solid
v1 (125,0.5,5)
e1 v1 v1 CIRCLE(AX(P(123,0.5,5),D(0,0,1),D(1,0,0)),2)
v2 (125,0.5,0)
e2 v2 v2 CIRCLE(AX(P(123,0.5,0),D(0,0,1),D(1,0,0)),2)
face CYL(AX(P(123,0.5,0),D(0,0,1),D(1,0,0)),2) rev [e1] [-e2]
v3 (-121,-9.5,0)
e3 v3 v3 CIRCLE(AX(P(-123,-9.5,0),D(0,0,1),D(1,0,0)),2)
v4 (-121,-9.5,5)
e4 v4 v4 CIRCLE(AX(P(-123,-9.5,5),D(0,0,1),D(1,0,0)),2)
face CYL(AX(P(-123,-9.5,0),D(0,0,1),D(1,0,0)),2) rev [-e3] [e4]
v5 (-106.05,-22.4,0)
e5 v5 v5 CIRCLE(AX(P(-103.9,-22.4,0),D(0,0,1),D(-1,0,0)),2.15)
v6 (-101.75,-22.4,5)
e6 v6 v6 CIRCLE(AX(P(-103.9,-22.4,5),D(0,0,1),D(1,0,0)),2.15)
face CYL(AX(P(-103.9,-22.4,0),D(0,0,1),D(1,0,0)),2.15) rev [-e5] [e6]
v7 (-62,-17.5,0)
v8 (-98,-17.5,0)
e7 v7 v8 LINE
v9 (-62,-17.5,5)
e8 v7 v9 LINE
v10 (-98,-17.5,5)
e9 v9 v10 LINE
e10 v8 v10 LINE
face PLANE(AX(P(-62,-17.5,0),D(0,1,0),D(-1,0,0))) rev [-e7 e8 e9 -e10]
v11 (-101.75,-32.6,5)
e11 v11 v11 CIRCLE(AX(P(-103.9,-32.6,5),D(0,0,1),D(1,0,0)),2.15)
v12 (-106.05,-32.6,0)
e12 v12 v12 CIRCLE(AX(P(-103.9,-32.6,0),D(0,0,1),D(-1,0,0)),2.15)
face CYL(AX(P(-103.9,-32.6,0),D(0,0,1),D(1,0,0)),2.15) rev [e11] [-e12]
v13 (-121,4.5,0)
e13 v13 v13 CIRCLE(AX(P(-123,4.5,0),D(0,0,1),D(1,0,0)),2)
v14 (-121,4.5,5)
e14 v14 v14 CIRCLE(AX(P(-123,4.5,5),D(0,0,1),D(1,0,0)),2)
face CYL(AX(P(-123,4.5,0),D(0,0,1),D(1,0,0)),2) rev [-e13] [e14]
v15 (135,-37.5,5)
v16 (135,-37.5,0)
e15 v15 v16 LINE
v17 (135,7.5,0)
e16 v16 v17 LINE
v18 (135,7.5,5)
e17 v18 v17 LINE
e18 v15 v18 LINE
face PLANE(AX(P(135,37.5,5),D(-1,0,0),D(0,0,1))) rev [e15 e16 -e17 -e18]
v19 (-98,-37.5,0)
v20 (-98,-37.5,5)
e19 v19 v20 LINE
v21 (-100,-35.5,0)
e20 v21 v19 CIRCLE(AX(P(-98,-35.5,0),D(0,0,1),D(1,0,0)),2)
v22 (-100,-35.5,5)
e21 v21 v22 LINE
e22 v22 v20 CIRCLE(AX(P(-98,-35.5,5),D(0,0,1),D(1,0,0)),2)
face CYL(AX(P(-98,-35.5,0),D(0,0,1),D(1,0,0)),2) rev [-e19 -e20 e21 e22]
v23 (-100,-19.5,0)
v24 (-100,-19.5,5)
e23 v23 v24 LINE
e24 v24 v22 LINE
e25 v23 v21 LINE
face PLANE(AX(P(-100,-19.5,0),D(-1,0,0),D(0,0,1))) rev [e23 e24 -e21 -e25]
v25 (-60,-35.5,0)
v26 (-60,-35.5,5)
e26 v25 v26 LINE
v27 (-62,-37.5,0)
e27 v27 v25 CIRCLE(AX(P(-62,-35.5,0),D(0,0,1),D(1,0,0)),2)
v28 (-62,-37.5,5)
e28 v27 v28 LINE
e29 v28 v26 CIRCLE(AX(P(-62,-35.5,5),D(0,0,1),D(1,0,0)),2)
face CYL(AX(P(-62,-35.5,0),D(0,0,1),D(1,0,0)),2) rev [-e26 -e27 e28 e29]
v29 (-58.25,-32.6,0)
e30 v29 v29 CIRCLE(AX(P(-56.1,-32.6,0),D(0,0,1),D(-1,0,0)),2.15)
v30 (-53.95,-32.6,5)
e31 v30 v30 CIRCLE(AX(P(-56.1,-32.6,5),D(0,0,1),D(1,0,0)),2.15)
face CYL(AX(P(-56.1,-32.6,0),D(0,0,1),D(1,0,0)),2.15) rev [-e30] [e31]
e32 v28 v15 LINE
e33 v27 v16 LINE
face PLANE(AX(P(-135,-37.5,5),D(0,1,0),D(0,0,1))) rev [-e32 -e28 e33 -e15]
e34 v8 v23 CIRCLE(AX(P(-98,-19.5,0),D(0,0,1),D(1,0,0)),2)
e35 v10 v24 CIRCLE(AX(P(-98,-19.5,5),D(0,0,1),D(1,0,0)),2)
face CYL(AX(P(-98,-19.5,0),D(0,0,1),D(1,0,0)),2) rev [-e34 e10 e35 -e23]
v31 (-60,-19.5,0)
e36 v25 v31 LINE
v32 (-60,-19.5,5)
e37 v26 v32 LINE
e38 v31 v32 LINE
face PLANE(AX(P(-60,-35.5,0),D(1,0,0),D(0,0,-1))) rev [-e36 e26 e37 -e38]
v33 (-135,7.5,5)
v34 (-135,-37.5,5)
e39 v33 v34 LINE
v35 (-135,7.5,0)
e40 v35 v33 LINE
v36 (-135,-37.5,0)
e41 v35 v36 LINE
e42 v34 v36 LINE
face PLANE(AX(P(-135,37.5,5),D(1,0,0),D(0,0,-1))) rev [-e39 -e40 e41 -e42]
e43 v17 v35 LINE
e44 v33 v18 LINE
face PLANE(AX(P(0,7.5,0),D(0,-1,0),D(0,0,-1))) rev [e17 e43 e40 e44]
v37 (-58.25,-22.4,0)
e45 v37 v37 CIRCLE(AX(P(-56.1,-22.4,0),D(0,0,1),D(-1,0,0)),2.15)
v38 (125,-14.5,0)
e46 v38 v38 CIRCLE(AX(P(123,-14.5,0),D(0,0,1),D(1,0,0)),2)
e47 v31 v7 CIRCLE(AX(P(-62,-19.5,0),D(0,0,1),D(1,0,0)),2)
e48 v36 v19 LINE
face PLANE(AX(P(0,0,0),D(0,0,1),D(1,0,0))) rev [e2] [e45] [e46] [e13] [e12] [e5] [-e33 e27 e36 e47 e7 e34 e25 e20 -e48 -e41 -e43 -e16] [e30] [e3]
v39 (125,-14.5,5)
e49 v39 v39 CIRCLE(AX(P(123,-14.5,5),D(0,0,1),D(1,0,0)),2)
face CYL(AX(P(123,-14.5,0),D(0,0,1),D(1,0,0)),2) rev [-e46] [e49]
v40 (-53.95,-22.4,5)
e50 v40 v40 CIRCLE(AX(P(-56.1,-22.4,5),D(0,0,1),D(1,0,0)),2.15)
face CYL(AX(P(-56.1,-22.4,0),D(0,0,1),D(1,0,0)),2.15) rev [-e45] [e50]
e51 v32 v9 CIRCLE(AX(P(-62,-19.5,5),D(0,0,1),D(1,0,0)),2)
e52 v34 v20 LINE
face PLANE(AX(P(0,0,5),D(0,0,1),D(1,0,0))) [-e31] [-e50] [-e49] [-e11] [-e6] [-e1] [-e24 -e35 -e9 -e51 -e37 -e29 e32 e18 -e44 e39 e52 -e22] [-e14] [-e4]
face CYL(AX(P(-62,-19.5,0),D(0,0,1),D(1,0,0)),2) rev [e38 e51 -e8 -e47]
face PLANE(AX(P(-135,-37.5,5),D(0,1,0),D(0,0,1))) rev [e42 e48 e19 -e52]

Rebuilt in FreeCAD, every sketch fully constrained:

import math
import FreeCAD as App
import Part
import Sketcher

V = App.Vector
Q = App.Units.Quantity


def add_polygon(sketch, points):
    """Adds a closed chain of lines whose ends are joined by coincident constraints."""
    first, n = sketch.GeometryCount, len(points)
    for a, b in zip(points, points[1:] + points[:1]):
        sketch.addGeometry(Part.LineSegment(App.Vector(*a, 0), App.Vector(*b, 0)), False)
    for i in range(n):
        sketch.addConstraint(Sketcher.Constraint("Coincident", first + i, 2, first + (i + 1) % n, 1))

doc = App.newDocument("Part")
params = doc.addObject("Spreadsheet::Sheet", "Params")
for row, (alias, value) in enumerate([
    ("sketch1_width", "270 mm"),
    ("sketch1_height", "75 mm"),
    ("pad1_length", "5 mm"),
    ("sketch2_diameter", "4 mm"),
    ("sketch3_radius", "2 mm"),
    ("sketch3_width", "36 mm"),
    ("sketch3_height", "16 mm"),
    ("sketch3_radius2", "2.15 mm"),
    ("sketch4_width", "270 mm"),
    ("sketch4_height", "5 mm"),
    ("pocket3_length", "30 mm"),
], start=1):
    params.set(f"A{row}", alias)
    params.set(f"B{row}", "=" + value)
    params.setAlias(f"B{row}", alias)

body = doc.addObject("PartDesign::Body", "Body")

# Sketch on XY plane
sketch1 = doc.addObject("Sketcher::SketchObject", "Sketch")
body.addObject(sketch1)
sketch1.AttachmentSupport = (doc.XY_Plane, [""])
sketch1.MapMode = "FlatFace"
add_polygon(sketch1, [(-135, 38), (-135, -38), (135, -38), (135, 38)])  # lines 0-3
sketch1.addConstraint([
    Sketcher.Constraint("Vertical", 0),
    Sketcher.Constraint("Horizontal", 1),
    Sketcher.Constraint("Vertical", 2),
    Sketcher.Constraint("Horizontal", 3),
    Sketcher.Constraint("Symmetric", 0, 2, 2, 2, -1, 1),
    Sketcher.Constraint("DistanceX", 1, 1, 1, 2, Q("270 mm")),
    Sketcher.Constraint("DistanceY", 0, 2, 0, 1, Q("75 mm")),
])
sketch1.setExpression("Constraints[9]", "Params.sketch1_width")
sketch1.setExpression("Constraints[10]", "Params.sketch1_height")
pad1 = doc.addObject("PartDesign::Pad", "Pad")
body.addObject(pad1)
pad1.Profile = sketch1
pad1.setExpression("Length", "Params.pad1_length")

# Sketch on XY plane
sketch2 = doc.addObject("Sketcher::SketchObject", "Sketch001")
body.addObject(sketch2)
sketch2.AttachmentSupport = (doc.XY_Plane, [""])
sketch2.MapMode = "FlatFace"
sketch2.AttachmentOffset = App.Placement(V(0, 0, 5), App.Rotation())
sketch2.addGeometry([
    Part.Circle(V(123, 0.5, 0), V(0, 0, 1), 2),
    Part.Circle(V(123, -14.5, 0), V(0, 0, 1), 2),
    Part.Circle(V(-123, 4.5, 0), V(0, 0, 1), 2),
    Part.Circle(V(-123, -9.5, 0), V(0, 0, 1), 2),
], False)
sketch2.addConstraint([
    Sketcher.Constraint("Equal", 0, 1),
    Sketcher.Constraint("Equal", 1, 2),
    Sketcher.Constraint("Equal", 2, 3),
    Sketcher.Constraint("Vertical", 0, 3, 1, 3),
    Sketcher.Constraint("Vertical", 2, 3, 3, 3),
    Sketcher.Constraint("Diameter", 0, Q("4 mm")),
    Sketcher.Constraint("DistanceX", -1, 1, 0, 3, Q("123 mm")),
    Sketcher.Constraint("DistanceX", 2, 3, -1, 1, Q("123 mm")),
    Sketcher.Constraint("DistanceY", 1, 3, 0, 3, Q("15 mm")),
    Sketcher.Constraint("DistanceY", 0, 3, 2, 3, Q("4 mm")),
    Sketcher.Constraint("DistanceY", 3, 3, 2, 3, Q("14 mm")),
    Sketcher.Constraint("DistanceY", -1, 1, 0, 3, Q("0.5 mm")),
])
sketch2.setExpression("Constraints[5]", "Params.sketch2_diameter")
pocket1 = doc.addObject("PartDesign::Pocket", "Pocket")
body.addObject(pocket1)
pocket1.Profile = sketch2
pocket1.Type = "ThroughAll"

# Sketch on XY plane
sketch3 = doc.addObject("Sketcher::SketchObject", "Sketch002")
body.addObject(sketch3)
sketch3.AttachmentSupport = (doc.XY_Plane, [""])
sketch3.MapMode = "FlatFace"
sketch3.AttachmentOffset = App.Placement(V(0, 0, 5), App.Rotation())
sketch3.addGeometry([
    Part.LineSegment(V(-98, -37.5, 0), V(-62, -37.5, 0)),  # 0
    Part.ArcOfCircle(Part.Circle(V(-62, -35.5, 0), V(0, 0, 1), 2), math.radians(-90), math.radians(0)),  # 1
    Part.LineSegment(V(-60, -35.5, 0), V(-60, -19.5, 0)),  # 2
    Part.ArcOfCircle(Part.Circle(V(-62, -19.5, 0), V(0, 0, 1), 2), math.radians(0), math.radians(90)),  # 3
    Part.LineSegment(V(-62, -17.5, 0), V(-98, -17.5, 0)),  # 4
    Part.ArcOfCircle(Part.Circle(V(-98, -19.5, 0), V(0, 0, 1), 2), math.radians(90), math.radians(180)),  # 5
    Part.LineSegment(V(-100, -19.5, 0), V(-100, -35.5, 0)),  # 6
    Part.ArcOfCircle(Part.Circle(V(-98, -35.5, 0), V(0, 0, 1), 2), math.radians(-180), math.radians(-90)),  # 7
    Part.ArcOfCircle(Part.Circle(V(-56.1, -32.6, 0), V(0, 0, 1), 2.1), math.radians(37), math.radians(323)),  # 8
    Part.ArcOfCircle(Part.Circle(V(-56.1, -32.6, 0), V(0, 0, 1), 2.1), math.radians(-37), math.radians(37)),  # 9
    Part.ArcOfCircle(Part.Circle(V(-56.1, -22.4, 0), V(0, 0, 1), 2.1), math.radians(37), math.radians(323)),  # 10
    Part.ArcOfCircle(Part.Circle(V(-56.1, -22.4, 0), V(0, 0, 1), 2.1), math.radians(-37), math.radians(37)),  # 11
    Part.ArcOfCircle(Part.Circle(V(-103.9, -32.6, 0), V(0, 0, 1), 2.1), math.radians(-143), math.radians(143)),  # 12
    Part.ArcOfCircle(Part.Circle(V(-103.9, -32.6, 0), V(0, 0, 1), 2.1), math.radians(143), math.radians(217)),  # 13
    Part.ArcOfCircle(Part.Circle(V(-103.9, -22.4, 0), V(0, 0, 1), 2.1), math.radians(-143), math.radians(143)),  # 14
    Part.ArcOfCircle(Part.Circle(V(-103.9, -22.4, 0), V(0, 0, 1), 2.1), math.radians(143), math.radians(217)),  # 15
], False)
sketch3.addConstraint([
    Sketcher.Constraint("Tangent", 0, 2, 1, 1),
    Sketcher.Constraint("Tangent", 1, 2, 2, 1),
    Sketcher.Constraint("Tangent", 2, 2, 3, 1),
    Sketcher.Constraint("Tangent", 3, 2, 4, 1),
    Sketcher.Constraint("Tangent", 4, 2, 5, 1),
    Sketcher.Constraint("Tangent", 5, 2, 6, 1),
    Sketcher.Constraint("Tangent", 6, 2, 7, 1),
    Sketcher.Constraint("Tangent", 7, 2, 0, 1),
    Sketcher.Constraint("Tangent", 8, 1, 9, 2),
    Sketcher.Constraint("Coincident", 9, 1, 8, 2),
    Sketcher.Constraint("Tangent", 10, 1, 11, 2),
    Sketcher.Constraint("Coincident", 11, 1, 10, 2),
    Sketcher.Constraint("Tangent", 12, 1, 13, 2),
    Sketcher.Constraint("Coincident", 13, 1, 12, 2),
    Sketcher.Constraint("Tangent", 14, 1, 15, 2),
    Sketcher.Constraint("Coincident", 15, 1, 14, 2),
    Sketcher.Constraint("Horizontal", 0),
    Sketcher.Constraint("Vertical", 2),
    Sketcher.Constraint("Horizontal", 4),
    Sketcher.Constraint("Vertical", 6),
    Sketcher.Constraint("Equal", 1, 3),
    Sketcher.Constraint("Equal", 3, 5),
    Sketcher.Constraint("Equal", 5, 7),
    Sketcher.Constraint("Equal", 9, 10),
    Sketcher.Constraint("Equal", 11, 12),
    Sketcher.Constraint("Equal", 13, 14),
    Sketcher.Constraint("Horizontal", 9, 3, 12, 3),
    Sketcher.Constraint("Horizontal", 11, 3, 14, 3),
    Sketcher.Constraint("Horizontal", 9, 1, 12, 1),
    Sketcher.Constraint("Horizontal", 8, 1, 13, 1),
    Sketcher.Constraint("Horizontal", 11, 1, 14, 1),
    Sketcher.Constraint("Horizontal", 10, 1, 15, 1),
    Sketcher.Constraint("Vertical", 9, 3, 10, 3),
    Sketcher.Constraint("Vertical", 13, 3, 14, 3),
    Sketcher.Constraint("Vertical", 8, 1, 9, 1),
    Sketcher.Constraint("Vertical", 9, 1, 10, 1),
    Sketcher.Constraint("Vertical", 10, 1, 11, 1),
    Sketcher.Constraint("Radius", 1, Q("2 mm")),
    Sketcher.Constraint("DistanceX", 0, 1, 0, 2, Q("36 mm")),
    Sketcher.Constraint("DistanceY", 2, 1, 2, 2, Q("16 mm")),
    Sketcher.Constraint("Radius", 8, Q("2.15 mm")),
    Sketcher.Constraint("DistanceX", 1, 3, -1, 1, Q("62 mm")),
    Sketcher.Constraint("DistanceY", 1, 3, -1, 1, Q("35.5 mm")),
    Sketcher.Constraint("DistanceX", 8, 3, -1, 1, Q("56.1 mm")),
    Sketcher.Constraint("DistanceY", 8, 3, -1, 1, Q("32.6 mm")),
    Sketcher.Constraint("DistanceY", 10, 3, -1, 1, Q("22.4 mm")),
    Sketcher.Constraint("DistanceX", 12, 3, -1, 1, Q("103.9 mm")),
    Sketcher.Constraint("DistanceY", 8, 1, -1, 1, Q("31.3 mm")),
])
sketch3.setExpression("Constraints[37]", "Params.sketch3_radius")
sketch3.setExpression("Constraints[38]", "Params.sketch3_width")
sketch3.setExpression("Constraints[39]", "Params.sketch3_height")
sketch3.setExpression("Constraints[40]", "Params.sketch3_radius2")
pocket2 = doc.addObject("PartDesign::Pocket", "Pocket001")
body.addObject(pocket2)
pocket2.Profile = sketch3
pocket2.Type = "ThroughAll"
pocket2.Midplane = True

# Sketch on XZ plane
sketch4 = doc.addObject("Sketcher::SketchObject", "Sketch003")
body.addObject(sketch4)
sketch4.AttachmentSupport = (doc.XZ_Plane, [""])
sketch4.MapMode = "FlatFace"
sketch4.AttachmentOffset = App.Placement(V(0, 0, -37.5), App.Rotation())
add_polygon(sketch4, [(-135, 0), (-135, 5), (135, 5), (135, 0)])  # lines 0-3
sketch4.addConstraint([
    Sketcher.Constraint("Vertical", 0),
    Sketcher.Constraint("Horizontal", 1),
    Sketcher.Constraint("Vertical", 2),
    Sketcher.Constraint("Horizontal", 3),
    Sketcher.Constraint("Symmetric", 2, 2, 3, 2, -1, 1),
    Sketcher.Constraint("DistanceX", 1, 1, 1, 2, Q("270 mm")),
    Sketcher.Constraint("DistanceY", 0, 1, 0, 2, Q("5 mm")),
])
sketch4.setExpression("Constraints[9]", "Params.sketch4_width")
sketch4.setExpression("Constraints[10]", "Params.sketch4_height")
pocket3 = doc.addObject("PartDesign::Pocket", "Pocket002")
body.addObject(pocket3)
pocket3.Profile = sketch4
pocket3.setExpression("Length", "Params.pocket3_length")
pocket3.Reversed = True

doc.recompute()
